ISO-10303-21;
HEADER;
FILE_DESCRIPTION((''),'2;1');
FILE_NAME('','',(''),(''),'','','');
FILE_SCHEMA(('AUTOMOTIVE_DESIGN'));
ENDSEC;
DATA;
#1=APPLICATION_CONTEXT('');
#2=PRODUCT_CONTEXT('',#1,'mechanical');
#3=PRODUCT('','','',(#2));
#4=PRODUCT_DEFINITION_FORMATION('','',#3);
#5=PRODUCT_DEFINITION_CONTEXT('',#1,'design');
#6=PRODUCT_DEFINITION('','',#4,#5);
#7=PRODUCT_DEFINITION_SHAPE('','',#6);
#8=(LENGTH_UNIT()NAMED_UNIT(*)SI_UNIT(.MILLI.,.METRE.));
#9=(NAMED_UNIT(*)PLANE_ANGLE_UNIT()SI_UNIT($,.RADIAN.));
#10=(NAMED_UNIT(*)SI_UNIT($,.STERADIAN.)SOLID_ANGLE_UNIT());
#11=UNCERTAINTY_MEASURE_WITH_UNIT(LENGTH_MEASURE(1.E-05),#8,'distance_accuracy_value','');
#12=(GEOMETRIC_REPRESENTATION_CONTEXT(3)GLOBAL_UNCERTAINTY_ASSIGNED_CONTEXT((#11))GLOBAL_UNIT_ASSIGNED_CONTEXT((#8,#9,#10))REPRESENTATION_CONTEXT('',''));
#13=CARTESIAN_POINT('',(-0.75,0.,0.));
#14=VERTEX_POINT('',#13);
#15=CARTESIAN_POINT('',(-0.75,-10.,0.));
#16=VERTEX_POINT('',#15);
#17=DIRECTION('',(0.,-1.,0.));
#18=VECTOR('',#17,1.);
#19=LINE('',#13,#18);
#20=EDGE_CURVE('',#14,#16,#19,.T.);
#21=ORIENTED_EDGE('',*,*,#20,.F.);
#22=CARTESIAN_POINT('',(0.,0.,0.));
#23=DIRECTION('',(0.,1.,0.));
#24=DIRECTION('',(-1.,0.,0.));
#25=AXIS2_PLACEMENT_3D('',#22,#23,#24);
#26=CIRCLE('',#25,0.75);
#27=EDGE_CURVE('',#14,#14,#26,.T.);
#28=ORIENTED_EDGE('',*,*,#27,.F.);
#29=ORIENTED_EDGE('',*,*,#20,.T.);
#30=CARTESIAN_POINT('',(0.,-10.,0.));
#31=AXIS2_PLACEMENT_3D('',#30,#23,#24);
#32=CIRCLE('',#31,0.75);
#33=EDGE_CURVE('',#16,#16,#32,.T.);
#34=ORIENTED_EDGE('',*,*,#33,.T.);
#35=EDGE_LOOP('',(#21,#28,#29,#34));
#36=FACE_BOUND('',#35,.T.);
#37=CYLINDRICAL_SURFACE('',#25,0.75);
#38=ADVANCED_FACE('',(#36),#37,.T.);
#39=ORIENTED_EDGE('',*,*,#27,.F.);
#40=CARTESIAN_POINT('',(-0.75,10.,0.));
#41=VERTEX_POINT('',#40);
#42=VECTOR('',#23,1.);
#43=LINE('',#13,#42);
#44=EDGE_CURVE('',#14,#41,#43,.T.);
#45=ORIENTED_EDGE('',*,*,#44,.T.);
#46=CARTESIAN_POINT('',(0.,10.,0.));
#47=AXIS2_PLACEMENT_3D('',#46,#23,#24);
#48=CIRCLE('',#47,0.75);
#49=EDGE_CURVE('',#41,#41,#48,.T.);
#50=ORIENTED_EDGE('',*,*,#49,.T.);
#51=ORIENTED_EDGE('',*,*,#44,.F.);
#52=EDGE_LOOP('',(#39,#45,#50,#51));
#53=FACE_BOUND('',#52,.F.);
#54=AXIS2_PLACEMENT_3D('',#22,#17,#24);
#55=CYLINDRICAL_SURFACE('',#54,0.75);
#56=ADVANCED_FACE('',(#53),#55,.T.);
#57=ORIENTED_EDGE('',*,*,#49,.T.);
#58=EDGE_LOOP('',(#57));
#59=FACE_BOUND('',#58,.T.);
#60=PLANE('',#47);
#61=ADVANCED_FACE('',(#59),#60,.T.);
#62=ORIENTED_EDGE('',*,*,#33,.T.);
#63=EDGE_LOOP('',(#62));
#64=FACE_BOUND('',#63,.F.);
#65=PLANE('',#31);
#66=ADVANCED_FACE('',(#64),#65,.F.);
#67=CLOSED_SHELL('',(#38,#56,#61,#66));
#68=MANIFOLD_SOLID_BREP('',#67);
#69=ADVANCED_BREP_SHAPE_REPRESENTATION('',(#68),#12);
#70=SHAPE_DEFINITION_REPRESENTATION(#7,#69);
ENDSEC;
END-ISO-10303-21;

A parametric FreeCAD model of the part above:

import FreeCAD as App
import Part
import Sketcher
Q = App.Units.Quantity

doc = App.newDocument("Part")
params = doc.addObject("Spreadsheet::Sheet", "Params")
for row, (alias, value) in enumerate([
    ("sketch1_diameter", "1.5 mm"),
    ("pad1_length", "20 mm"),
], start=1):
    params.set(f"A{row}", alias)
    params.set(f"B{row}", "=" + value)
    params.setAlias(f"B{row}", alias)

body = doc.addObject("PartDesign::Body", "Body")

sketch1 = body.newObject("Sketcher::SketchObject", "Sketch")
sketch1.AttachmentSupport = (doc.getObject("XZ_Plane"), [""])
sketch1.MapMode = "FlatFace"
sketch1.addGeometry(Part.Circle(App.Vector(0, 0, 0), App.Vector(0, 0, 1), 0.75), False)
sketch1.addConstraint(Sketcher.Constraint("Coincident", 0, 3, -1, 1))
sketch1.addConstraint(Sketcher.Constraint("Diameter", 0, Q("1.5 mm")))
sketch1.setExpression("Constraints[1]", "Params.sketch1_diameter")
pad1 = body.newObject("PartDesign::Pad", "Pad")
pad1.Profile = sketch1
pad1.setExpression("Length", "Params.pad1_length")
pad1.Midplane = True

doc.recompute()
